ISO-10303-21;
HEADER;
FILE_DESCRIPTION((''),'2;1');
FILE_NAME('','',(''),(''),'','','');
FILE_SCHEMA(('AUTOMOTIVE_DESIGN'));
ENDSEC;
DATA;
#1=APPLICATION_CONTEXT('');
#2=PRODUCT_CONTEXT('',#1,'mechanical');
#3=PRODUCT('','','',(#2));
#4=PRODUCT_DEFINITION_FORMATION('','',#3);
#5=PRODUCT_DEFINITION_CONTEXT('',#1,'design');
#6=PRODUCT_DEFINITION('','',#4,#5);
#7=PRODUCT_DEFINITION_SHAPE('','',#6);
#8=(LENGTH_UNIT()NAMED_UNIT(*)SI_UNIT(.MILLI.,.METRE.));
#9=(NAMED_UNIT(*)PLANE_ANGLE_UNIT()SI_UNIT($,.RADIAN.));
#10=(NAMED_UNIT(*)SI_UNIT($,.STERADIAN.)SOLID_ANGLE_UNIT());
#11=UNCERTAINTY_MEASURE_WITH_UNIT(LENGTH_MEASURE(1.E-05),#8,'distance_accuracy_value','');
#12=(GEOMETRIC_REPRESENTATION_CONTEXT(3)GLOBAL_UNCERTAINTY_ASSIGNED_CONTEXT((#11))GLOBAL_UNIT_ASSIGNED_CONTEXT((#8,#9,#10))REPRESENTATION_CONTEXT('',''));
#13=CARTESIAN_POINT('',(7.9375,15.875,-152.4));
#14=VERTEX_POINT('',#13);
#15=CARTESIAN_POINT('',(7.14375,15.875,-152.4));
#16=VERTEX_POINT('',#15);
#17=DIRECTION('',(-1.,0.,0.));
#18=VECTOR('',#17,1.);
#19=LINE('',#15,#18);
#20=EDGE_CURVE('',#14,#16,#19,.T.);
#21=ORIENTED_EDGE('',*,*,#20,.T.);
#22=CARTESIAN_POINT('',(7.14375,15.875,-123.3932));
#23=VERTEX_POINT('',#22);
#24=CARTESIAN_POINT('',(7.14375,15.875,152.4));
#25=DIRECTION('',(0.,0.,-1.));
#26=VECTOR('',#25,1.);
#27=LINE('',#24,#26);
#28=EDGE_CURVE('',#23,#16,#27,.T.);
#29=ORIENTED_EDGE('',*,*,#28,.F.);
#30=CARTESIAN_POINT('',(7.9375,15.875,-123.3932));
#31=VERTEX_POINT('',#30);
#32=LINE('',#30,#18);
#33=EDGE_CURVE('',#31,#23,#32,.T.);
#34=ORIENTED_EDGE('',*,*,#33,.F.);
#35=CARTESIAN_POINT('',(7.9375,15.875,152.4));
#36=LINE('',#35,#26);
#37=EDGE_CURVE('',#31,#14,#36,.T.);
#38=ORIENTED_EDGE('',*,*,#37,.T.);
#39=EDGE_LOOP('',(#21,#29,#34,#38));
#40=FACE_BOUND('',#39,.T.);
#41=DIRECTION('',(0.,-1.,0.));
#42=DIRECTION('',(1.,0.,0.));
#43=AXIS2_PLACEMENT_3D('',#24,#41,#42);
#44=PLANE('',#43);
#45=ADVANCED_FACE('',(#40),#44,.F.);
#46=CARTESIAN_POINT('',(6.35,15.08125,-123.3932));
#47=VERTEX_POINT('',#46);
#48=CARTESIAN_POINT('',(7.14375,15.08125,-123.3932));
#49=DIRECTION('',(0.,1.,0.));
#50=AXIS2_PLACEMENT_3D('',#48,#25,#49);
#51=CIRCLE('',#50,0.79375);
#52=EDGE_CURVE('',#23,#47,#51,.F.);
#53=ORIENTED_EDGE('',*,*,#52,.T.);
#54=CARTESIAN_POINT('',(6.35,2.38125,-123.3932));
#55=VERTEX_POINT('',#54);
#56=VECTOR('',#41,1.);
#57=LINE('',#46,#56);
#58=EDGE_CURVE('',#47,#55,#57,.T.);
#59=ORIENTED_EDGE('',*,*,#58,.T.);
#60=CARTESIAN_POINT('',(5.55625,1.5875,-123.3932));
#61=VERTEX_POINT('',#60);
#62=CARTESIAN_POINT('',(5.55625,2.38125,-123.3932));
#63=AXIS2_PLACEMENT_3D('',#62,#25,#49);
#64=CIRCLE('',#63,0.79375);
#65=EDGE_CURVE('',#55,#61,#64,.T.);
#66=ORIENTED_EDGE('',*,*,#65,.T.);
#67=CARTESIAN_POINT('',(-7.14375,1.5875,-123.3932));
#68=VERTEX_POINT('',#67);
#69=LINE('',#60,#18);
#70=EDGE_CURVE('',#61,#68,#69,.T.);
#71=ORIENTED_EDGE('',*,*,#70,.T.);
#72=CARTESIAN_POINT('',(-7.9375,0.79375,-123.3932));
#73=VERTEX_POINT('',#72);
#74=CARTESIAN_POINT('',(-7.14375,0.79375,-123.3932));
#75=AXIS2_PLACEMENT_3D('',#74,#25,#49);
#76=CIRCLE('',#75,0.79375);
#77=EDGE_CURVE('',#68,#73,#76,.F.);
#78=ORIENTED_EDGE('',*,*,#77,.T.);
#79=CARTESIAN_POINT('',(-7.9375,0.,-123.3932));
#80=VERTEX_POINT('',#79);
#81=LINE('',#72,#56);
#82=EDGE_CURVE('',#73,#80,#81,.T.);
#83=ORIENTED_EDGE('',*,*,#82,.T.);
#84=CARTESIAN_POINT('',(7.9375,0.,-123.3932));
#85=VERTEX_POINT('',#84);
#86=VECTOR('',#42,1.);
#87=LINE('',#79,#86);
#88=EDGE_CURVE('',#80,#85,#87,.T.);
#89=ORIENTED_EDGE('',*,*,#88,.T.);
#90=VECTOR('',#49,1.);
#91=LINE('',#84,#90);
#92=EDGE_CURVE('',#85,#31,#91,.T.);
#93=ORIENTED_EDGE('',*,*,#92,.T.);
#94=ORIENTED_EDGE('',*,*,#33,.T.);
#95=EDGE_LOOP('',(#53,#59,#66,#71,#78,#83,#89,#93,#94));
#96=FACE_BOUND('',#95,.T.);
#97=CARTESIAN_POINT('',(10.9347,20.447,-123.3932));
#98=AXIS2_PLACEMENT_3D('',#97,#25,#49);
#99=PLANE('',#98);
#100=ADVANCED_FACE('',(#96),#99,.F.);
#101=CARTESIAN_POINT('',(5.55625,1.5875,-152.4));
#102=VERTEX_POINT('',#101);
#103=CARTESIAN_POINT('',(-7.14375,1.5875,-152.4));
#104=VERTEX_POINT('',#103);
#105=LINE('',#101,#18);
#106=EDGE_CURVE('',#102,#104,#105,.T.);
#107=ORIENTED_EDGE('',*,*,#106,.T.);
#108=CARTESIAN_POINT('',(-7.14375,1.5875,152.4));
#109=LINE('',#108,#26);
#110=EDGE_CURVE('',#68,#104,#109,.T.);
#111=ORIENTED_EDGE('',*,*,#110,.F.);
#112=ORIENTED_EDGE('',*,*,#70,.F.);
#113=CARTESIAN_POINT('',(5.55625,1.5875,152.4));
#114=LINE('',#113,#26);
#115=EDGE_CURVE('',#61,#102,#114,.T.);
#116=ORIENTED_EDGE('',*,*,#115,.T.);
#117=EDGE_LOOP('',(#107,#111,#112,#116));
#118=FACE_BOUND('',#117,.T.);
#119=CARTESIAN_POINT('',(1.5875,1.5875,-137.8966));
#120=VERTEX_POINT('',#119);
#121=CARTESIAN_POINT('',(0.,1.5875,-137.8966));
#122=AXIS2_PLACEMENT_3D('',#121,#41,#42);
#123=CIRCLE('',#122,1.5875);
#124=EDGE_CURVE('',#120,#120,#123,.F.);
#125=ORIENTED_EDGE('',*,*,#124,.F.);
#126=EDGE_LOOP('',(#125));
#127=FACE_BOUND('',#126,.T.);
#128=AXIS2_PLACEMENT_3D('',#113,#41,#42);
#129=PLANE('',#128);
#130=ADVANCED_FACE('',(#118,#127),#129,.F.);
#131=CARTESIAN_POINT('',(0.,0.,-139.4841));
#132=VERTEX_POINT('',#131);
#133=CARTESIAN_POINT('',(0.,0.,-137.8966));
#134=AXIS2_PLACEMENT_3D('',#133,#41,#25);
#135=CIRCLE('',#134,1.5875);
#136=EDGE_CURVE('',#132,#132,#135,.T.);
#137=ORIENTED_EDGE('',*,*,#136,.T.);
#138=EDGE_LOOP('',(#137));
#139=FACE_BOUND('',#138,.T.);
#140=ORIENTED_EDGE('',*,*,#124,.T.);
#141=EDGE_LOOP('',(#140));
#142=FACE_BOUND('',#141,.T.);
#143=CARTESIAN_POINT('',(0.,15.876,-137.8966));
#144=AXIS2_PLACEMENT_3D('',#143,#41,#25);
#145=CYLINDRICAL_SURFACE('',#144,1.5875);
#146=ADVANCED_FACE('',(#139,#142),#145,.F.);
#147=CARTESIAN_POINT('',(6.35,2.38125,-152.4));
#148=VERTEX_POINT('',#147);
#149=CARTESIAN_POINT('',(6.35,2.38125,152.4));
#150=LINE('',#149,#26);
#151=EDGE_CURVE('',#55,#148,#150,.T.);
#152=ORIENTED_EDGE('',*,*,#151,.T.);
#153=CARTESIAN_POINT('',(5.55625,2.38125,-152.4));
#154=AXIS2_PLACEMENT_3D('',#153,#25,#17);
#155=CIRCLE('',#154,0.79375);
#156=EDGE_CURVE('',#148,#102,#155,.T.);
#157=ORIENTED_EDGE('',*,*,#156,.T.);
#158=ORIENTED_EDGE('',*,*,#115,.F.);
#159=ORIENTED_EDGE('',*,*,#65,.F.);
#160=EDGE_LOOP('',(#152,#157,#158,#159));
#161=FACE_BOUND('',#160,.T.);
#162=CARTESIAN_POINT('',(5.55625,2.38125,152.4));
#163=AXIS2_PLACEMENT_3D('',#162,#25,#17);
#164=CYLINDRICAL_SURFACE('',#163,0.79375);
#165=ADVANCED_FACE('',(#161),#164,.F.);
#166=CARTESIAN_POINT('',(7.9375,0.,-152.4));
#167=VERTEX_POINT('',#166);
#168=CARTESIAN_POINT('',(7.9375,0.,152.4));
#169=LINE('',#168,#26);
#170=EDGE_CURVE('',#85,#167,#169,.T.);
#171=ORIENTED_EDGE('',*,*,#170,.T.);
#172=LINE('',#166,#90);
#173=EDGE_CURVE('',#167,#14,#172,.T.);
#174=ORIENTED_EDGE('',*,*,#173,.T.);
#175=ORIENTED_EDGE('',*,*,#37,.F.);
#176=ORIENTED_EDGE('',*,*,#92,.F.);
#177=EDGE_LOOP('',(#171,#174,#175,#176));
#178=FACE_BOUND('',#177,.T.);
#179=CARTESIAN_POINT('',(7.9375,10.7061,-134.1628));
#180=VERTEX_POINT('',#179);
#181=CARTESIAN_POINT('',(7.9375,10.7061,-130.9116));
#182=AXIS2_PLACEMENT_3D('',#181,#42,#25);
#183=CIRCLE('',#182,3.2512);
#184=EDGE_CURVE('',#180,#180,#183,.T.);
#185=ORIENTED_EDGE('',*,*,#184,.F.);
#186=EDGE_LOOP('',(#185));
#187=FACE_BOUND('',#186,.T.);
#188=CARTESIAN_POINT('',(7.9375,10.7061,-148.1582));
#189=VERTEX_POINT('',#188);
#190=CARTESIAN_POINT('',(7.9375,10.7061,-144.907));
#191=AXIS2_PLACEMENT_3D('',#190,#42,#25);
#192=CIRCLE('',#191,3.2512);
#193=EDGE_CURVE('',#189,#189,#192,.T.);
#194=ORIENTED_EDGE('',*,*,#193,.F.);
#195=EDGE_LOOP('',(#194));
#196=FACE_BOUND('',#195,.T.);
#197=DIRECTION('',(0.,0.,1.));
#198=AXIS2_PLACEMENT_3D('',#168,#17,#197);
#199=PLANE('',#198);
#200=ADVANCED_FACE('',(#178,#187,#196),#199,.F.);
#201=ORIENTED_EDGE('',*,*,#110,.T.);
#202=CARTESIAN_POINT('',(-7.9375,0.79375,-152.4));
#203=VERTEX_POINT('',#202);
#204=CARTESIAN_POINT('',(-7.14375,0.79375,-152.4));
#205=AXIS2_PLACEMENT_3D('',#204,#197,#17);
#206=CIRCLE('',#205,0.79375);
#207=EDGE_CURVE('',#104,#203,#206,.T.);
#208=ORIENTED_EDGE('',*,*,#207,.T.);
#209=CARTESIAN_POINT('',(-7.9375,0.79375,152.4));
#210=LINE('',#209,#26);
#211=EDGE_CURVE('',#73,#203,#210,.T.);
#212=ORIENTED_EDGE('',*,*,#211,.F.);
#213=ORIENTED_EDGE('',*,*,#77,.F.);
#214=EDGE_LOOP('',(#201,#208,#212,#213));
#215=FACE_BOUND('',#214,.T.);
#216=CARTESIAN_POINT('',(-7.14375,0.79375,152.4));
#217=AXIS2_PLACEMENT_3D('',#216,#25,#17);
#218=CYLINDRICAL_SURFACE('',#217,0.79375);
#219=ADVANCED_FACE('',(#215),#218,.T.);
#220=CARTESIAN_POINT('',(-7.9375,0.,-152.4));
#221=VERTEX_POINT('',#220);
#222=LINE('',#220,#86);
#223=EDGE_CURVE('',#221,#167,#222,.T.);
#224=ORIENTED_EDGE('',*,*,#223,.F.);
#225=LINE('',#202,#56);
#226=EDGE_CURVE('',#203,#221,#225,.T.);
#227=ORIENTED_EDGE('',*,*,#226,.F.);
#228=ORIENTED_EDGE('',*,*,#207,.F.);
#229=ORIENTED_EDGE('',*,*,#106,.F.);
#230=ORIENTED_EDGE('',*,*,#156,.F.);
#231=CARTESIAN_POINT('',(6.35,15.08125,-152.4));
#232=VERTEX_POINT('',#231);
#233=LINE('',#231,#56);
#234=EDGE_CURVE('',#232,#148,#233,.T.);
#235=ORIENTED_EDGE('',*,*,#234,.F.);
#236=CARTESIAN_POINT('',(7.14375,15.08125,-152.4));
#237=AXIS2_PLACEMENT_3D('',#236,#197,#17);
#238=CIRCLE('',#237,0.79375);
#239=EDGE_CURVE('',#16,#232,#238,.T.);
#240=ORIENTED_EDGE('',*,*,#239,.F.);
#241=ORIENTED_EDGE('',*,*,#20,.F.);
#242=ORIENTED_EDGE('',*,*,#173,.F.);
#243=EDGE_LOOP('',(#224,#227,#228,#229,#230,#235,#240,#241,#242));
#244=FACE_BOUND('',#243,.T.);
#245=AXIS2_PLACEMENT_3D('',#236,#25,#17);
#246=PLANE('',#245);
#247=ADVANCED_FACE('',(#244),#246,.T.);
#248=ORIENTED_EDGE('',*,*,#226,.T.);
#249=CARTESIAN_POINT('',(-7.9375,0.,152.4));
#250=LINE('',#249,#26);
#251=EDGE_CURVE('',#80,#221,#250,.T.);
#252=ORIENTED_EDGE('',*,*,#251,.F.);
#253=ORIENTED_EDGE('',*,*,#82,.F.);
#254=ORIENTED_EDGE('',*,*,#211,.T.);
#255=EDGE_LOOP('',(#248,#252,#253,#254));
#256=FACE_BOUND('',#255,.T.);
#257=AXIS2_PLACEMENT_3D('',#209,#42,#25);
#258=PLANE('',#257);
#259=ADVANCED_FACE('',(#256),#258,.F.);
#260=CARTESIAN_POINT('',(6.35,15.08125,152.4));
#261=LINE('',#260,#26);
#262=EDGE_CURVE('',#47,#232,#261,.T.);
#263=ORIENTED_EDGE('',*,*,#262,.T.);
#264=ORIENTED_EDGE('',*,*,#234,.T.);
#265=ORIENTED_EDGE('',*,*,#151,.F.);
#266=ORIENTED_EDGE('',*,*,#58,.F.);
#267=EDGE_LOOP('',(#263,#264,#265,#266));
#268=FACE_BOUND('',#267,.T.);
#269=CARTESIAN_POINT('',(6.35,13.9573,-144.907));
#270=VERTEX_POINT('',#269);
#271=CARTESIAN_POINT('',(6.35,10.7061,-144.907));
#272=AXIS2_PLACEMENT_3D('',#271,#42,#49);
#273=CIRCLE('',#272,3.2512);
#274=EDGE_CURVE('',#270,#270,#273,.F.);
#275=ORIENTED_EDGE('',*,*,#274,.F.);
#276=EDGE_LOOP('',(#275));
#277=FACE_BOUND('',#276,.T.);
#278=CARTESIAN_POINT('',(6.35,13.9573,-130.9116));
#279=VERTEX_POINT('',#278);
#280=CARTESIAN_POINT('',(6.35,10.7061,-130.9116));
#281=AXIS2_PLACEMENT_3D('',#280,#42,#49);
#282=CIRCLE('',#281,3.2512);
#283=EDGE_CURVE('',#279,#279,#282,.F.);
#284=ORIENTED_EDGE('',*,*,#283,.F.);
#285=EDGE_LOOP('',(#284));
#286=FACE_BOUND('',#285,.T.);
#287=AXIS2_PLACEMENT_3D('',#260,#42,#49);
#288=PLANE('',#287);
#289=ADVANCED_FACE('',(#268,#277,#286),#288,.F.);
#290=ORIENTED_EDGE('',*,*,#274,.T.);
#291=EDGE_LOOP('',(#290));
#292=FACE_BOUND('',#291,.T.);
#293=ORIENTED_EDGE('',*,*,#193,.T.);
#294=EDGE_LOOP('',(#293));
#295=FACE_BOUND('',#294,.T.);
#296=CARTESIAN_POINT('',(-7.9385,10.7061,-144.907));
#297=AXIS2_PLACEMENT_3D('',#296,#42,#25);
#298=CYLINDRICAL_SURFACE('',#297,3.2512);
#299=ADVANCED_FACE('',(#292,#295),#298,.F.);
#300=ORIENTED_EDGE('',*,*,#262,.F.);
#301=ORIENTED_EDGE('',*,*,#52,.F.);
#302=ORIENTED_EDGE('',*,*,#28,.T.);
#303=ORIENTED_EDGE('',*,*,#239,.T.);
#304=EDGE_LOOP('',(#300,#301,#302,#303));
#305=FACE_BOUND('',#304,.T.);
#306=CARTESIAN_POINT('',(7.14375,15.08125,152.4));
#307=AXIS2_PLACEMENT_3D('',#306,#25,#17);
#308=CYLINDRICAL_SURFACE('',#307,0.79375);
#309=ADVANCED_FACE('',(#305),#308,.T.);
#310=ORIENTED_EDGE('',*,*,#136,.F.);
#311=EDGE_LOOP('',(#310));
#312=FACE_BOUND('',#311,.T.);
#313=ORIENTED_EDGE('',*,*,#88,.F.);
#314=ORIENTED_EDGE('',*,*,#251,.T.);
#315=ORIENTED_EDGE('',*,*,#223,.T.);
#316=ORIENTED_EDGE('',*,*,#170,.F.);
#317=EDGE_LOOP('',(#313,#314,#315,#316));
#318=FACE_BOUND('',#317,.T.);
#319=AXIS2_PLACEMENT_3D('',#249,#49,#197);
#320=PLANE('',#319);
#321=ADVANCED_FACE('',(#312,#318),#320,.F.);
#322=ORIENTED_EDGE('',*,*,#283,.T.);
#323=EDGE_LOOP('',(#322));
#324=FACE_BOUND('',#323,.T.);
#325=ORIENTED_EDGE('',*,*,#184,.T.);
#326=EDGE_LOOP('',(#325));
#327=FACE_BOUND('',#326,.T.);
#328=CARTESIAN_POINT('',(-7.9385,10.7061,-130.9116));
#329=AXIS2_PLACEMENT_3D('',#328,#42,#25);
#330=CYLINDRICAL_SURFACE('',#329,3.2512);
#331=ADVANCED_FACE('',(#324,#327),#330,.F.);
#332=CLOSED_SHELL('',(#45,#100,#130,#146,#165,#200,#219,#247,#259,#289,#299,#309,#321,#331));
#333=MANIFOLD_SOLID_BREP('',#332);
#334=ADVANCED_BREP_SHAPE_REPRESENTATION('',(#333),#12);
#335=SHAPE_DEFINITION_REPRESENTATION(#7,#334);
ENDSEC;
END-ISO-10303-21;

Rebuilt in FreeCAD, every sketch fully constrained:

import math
import FreeCAD as App
import Part
import Sketcher

V = App.Vector
Q = App.Units.Quantity

doc = App.newDocument("Part")
body = doc.addObject("PartDesign::Body", "Body")

# Sketch on XY plane
sketch1 = body.newObject("Sketcher::SketchObject", "Sketch")
sketch1.AttachmentSupport = (doc.getObject("XY_Plane"), [""])
sketch1.MapMode = "FlatFace"
sketch1.addGeometry([
    Part.LineSegment(V(-7.9, 0, 0), V(7.9, 0, 0)),  # 0
    Part.LineSegment(V(7.9, 0, 0), V(7.9, 15.9, 0)),  # 1
    Part.LineSegment(V(7.9, 15.9, 0), V(7.1, 15.9, 0)),  # 2
    Part.ArcOfCircle(Part.Circle(V(7.1, 15.1, 0), V(0, 0, 1), 0.8), math.radians(90), math.radians(180)),  # 3
    Part.LineSegment(V(6.3, 15.1, 0), V(6.3, 2.4, 0)),  # 4
    Part.ArcOfCircle(Part.Circle(V(5.6, 2.4, 0), V(0, 0, 1), 0.8), math.radians(-90), math.radians(0)),  # 5
    Part.LineSegment(V(5.6, 1.6, 0), V(-7.1, 1.6, 0)),  # 6
    Part.ArcOfCircle(Part.Circle(V(-7.1, 0.8, 0), V(0, 0, 1), 0.8), math.radians(90), math.radians(180)),  # 7
    Part.LineSegment(V(-7.9, 0.8, 0), V(-7.9, 0, 0)),  # 8
], False)
sketch1.addConstraint([
    Sketcher.Constraint("Coincident", 0, 2, 1, 1),
    Sketcher.Constraint("Coincident", 1, 2, 2, 1),
    Sketcher.Constraint("Tangent", 2, 2, 3, 1),
    Sketcher.Constraint("Tangent", 3, 2, 4, 1),
    Sketcher.Constraint("Tangent", 4, 2, 5, 2),
    Sketcher.Constraint("Tangent", 5, 1, 6, 1),
    Sketcher.Constraint("Tangent", 6, 2, 7, 1),
    Sketcher.Constraint("Tangent", 7, 2, 8, 1),
    Sketcher.Constraint("Coincident", 8, 2, 0, 1),
    Sketcher.Constraint("Horizontal", 0),
    Sketcher.Constraint("Vertical", 1),
    Sketcher.Constraint("Horizontal", 2),
    Sketcher.Constraint("Vertical", 4),
    Sketcher.Constraint("Horizontal", 6),
    Sketcher.Constraint("Vertical", 8),
    Sketcher.Constraint("Equal", 3, 5),
    Sketcher.Constraint("Equal", 5, 7),
    Sketcher.Constraint("Symmetric", 0, 2, 8, 2, -1, 1),
    Sketcher.Constraint("Equal", 0, 1),
    Sketcher.Constraint("Equal", 6, 4),
    Sketcher.Constraint("DistanceX", 6, 2, 6, 1, Q("0.5 in")),
    Sketcher.Constraint("Radius", 3, Q("0.03125 in")),
    Sketcher.Constraint("DistanceX", 0, 1, 0, 2, Q("0.625 in")),
])
pad1 = body.newObject("PartDesign::Pad", "Pad")
pad1.Profile = sketch1
pad1.Length = Q("12 in")
pad1.Midplane = True

# Sketch on YZ plane
sketch2 = body.newObject("Sketcher::SketchObject", "Sketch001")
sketch2.AttachmentSupport = (doc.getObject("YZ_Plane"), [""])
sketch2.MapMode = "FlatFace"
sketch2.AttachmentOffset = App.Placement(V(0, 0, 0.3125 * 25.4), App.Rotation())
sketch2.addGeometry(Part.Circle(V(10.7, -144.9, 0), V(0, 0, 1), 3.3), False)
sketch2.addConstraint([
    Sketcher.Constraint("Diameter", 0, Q("0.256 in")),
    Sketcher.Constraint("DistanceY", 0, 3, -1, 1, Q("5.705 in")),
    Sketcher.Constraint("DistanceX", -1, 1, 0, 3, Q("0.4215 in")),
])
pocket1 = body.newObject("PartDesign::Pocket", "Pocket")
pocket1.Profile = sketch2
pocket1.Type = "UpToFirst"

# Sketch on YZ plane
sketch3 = body.newObject("Sketcher::SketchObject", "Sketch002")
sketch3.AttachmentSupport = (doc.getObject("YZ_Plane"), [""])
sketch3.MapMode = "FlatFace"
sketch3.AttachmentOffset = App.Placement(V(0, 0, 0.3125 * 25.4), App.Rotation())
sketch3.addGeometry(Part.Circle(V(10.7, -130.9, 0), V(0, 0, 1), 3.3), False)
sketch3.addConstraint([
    Sketcher.Constraint("Diameter", 0, Q("0.256 in")),
    Sketcher.Constraint("DistanceY", 0, 3, -1, 1, Q("5.154 in")),
    Sketcher.Constraint("DistanceX", -1, 1, 0, 3, Q("0.4215 in")),
])
pocket2 = body.newObject("PartDesign::Pocket", "Pocket001")
pocket2.Profile = sketch3
pocket2.Type = "UpToFirst"

# Sketch on XY plane
sketch4 = body.newObject("Sketcher::SketchObject", "Sketch003")
sketch4.AttachmentSupport = (doc.getObject("XY_Plane"), [""])
sketch4.MapMode = "FlatFace"
sketch4.AttachmentOffset = App.Placement(V(0, 0, -4.858 * 25.4), App.Rotation())
sketch4.addGeometry([
    Part.LineSegment(V(-7.9, 0.8, 0), V(-7.9, 0, 0)),  # 0
    Part.LineSegment(V(-7.9, 0, 0), V(7.9, 0, 0)),  # 1
    Part.LineSegment(V(7.9, 0, 0), V(7.9, 15.9, 0)),  # 2
    Part.LineSegment(V(7.9, 15.9, 0), V(7.1, 15.9, 0)),  # 3
    Part.ArcOfCircle(Part.Circle(V(7.1, 15.1, 0), V(0, 0, 1), 0.8), math.radians(90), math.radians(180)),  # 4
    Part.LineSegment(V(6.3, 15.1, 0), V(6.3, 2.4, 0)),  # 5
    Part.ArcOfCircle(Part.Circle(V(5.6, 2.4, 0), V(0, 0, 1), 0.8), math.radians(-90), math.radians(0)),  # 6
    Part.LineSegment(V(5.6, 1.6, 0), V(-7.1, 1.6, 0)),  # 7
    Part.ArcOfCircle(Part.Circle(V(-7.1, 0.8, 0), V(0, 0, 1), 0.8), math.radians(90), math.radians(180)),  # 8
], False)
sketch4.addConstraint([
    Sketcher.Constraint("Coincident", 0, 2, 1, 1),
    Sketcher.Constraint("Coincident", 1, 2, 2, 1),
    Sketcher.Constraint("Coincident", 2, 2, 3, 1),
    Sketcher.Constraint("Tangent", 3, 2, 4, 1),
    Sketcher.Constraint("Tangent", 4, 2, 5, 1),
    Sketcher.Constraint("Tangent", 5, 2, 6, 2),
    Sketcher.Constraint("Tangent", 6, 1, 7, 1),
    Sketcher.Constraint("Tangent", 7, 2, 8, 1),
    Sketcher.Constraint("Tangent", 8, 2, 0, 1),
    Sketcher.Constraint("Vertical", 0),
    Sketcher.Constraint("Horizontal", 1),
    Sketcher.Constraint("Vertical", 2),
    Sketcher.Constraint("Horizontal", 3),
    Sketcher.Constraint("Vertical", 5),
    Sketcher.Constraint("Horizontal", 7),
    Sketcher.Constraint("Equal", 4, 6),
    Sketcher.Constraint("Equal", 6, 8),
    Sketcher.Constraint("Symmetric", 0, 2, 1, 2, -1, 1),
    Sketcher.Constraint("Equal", 3, 0),
    Sketcher.Constraint("Equal", 1, 2),
    Sketcher.Constraint("DistanceX", 7, 2, 7, 1, Q("0.5 in")),
    Sketcher.Constraint("Radius", 4, Q("0.03125 in")),
    Sketcher.Constraint("DistanceX", 1, 1, 1, 2, Q("0.625 in")),
])
pocket3 = body.newObject("PartDesign::Pocket", "Pocket002")
pocket3.Profile = sketch4
pocket3.Length = Q("10.858 in")
pocket3.Reversed = True

# Sketch on XZ plane
sketch5 = body.newObject("Sketcher::SketchObject", "Sketch004")
sketch5.AttachmentSupport = (doc.getObject("XZ_Plane"), [""])
sketch5.MapMode = "FlatFace"
sketch5.addGeometry(Part.Circle(V(0, -137.9, 0), V(0, 0, 1), 1.6), False)
sketch5.addConstraint([
    Sketcher.Constraint("PointOnObject", 0, 3, -2),
    Sketcher.Constraint("Diameter", 0, Q("0.125 in")),
    Sketcher.Constraint("DistanceY", 0, 3, -1, 1, Q("5.429 in")),
])
pocket4 = body.newObject("PartDesign::Pocket", "Pocket003")
pocket4.Profile = sketch5
pocket4.Type = "UpToFirst"

doc.recompute()
